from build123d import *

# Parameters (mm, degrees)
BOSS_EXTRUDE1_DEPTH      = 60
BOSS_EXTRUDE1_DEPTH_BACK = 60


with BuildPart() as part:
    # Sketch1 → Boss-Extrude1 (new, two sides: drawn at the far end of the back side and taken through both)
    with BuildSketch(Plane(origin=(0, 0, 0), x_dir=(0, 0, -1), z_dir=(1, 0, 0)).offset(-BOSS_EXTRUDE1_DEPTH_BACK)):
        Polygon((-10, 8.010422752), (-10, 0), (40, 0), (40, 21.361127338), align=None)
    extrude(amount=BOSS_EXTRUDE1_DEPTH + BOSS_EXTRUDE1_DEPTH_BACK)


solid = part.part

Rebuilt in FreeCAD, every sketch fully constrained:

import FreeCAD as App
import Part
import Sketcher
from FreeCAD import Vector
Q = App.Units.Quantity


def add_polygon(sketch, points):
    """Adds a closed chain of lines whose ends are joined by coincident constraints."""
    first, n = sketch.GeometryCount, len(points)
    for a, b in zip(points, points[1:] + points[:1]):
        sketch.addGeometry(Part.LineSegment(App.Vector(*a, 0), App.Vector(*b, 0)), False)
    for i in range(n):
        sketch.addConstraint(Sketcher.Constraint("Coincident", first + i, 2, first + (i + 1) % n, 1))

doc = App.newDocument("Part")
body = doc.addObject("PartDesign::Body", "Body")

# Sketch on YZ plane
sketch1 = body.newObject("Sketcher::SketchObject", "Sketch")
sketch1.AttachmentSupport = (doc.getObject("YZ_Plane"), [""])
sketch1.MapMode = "FlatFace"
add_polygon(sketch1, [(8.010423, 10), (0, 10), (0, -40), (21.361127, -40)])  # lines 0-3
sketch1.addConstraint([
    Sketcher.Constraint("Horizontal", 0),
    Sketcher.Constraint("Vertical", 1),
    Sketcher.Constraint("Horizontal", 2),
    Sketcher.Constraint("PointOnObject", 0, 2, -2),
    Sketcher.Constraint("DistanceY", 1, 2, 1, 1, 50.0),
    Sketcher.Constraint("DistanceY", -1, 1, 0, 2, 10.0),
    Sketcher.Constraint("Angle", 3, Q("104.95 deg")),
    Sketcher.Constraint("DistanceX", 0, 2, 0, 1, 8.010423),
])
pad1 = body.newObject("PartDesign::Pad", "Pad")
pad1.Profile = sketch1
pad1.Type = "TwoLengths"
pad1.Length = 60
pad1.Length2 = 60

doc.recompute()
